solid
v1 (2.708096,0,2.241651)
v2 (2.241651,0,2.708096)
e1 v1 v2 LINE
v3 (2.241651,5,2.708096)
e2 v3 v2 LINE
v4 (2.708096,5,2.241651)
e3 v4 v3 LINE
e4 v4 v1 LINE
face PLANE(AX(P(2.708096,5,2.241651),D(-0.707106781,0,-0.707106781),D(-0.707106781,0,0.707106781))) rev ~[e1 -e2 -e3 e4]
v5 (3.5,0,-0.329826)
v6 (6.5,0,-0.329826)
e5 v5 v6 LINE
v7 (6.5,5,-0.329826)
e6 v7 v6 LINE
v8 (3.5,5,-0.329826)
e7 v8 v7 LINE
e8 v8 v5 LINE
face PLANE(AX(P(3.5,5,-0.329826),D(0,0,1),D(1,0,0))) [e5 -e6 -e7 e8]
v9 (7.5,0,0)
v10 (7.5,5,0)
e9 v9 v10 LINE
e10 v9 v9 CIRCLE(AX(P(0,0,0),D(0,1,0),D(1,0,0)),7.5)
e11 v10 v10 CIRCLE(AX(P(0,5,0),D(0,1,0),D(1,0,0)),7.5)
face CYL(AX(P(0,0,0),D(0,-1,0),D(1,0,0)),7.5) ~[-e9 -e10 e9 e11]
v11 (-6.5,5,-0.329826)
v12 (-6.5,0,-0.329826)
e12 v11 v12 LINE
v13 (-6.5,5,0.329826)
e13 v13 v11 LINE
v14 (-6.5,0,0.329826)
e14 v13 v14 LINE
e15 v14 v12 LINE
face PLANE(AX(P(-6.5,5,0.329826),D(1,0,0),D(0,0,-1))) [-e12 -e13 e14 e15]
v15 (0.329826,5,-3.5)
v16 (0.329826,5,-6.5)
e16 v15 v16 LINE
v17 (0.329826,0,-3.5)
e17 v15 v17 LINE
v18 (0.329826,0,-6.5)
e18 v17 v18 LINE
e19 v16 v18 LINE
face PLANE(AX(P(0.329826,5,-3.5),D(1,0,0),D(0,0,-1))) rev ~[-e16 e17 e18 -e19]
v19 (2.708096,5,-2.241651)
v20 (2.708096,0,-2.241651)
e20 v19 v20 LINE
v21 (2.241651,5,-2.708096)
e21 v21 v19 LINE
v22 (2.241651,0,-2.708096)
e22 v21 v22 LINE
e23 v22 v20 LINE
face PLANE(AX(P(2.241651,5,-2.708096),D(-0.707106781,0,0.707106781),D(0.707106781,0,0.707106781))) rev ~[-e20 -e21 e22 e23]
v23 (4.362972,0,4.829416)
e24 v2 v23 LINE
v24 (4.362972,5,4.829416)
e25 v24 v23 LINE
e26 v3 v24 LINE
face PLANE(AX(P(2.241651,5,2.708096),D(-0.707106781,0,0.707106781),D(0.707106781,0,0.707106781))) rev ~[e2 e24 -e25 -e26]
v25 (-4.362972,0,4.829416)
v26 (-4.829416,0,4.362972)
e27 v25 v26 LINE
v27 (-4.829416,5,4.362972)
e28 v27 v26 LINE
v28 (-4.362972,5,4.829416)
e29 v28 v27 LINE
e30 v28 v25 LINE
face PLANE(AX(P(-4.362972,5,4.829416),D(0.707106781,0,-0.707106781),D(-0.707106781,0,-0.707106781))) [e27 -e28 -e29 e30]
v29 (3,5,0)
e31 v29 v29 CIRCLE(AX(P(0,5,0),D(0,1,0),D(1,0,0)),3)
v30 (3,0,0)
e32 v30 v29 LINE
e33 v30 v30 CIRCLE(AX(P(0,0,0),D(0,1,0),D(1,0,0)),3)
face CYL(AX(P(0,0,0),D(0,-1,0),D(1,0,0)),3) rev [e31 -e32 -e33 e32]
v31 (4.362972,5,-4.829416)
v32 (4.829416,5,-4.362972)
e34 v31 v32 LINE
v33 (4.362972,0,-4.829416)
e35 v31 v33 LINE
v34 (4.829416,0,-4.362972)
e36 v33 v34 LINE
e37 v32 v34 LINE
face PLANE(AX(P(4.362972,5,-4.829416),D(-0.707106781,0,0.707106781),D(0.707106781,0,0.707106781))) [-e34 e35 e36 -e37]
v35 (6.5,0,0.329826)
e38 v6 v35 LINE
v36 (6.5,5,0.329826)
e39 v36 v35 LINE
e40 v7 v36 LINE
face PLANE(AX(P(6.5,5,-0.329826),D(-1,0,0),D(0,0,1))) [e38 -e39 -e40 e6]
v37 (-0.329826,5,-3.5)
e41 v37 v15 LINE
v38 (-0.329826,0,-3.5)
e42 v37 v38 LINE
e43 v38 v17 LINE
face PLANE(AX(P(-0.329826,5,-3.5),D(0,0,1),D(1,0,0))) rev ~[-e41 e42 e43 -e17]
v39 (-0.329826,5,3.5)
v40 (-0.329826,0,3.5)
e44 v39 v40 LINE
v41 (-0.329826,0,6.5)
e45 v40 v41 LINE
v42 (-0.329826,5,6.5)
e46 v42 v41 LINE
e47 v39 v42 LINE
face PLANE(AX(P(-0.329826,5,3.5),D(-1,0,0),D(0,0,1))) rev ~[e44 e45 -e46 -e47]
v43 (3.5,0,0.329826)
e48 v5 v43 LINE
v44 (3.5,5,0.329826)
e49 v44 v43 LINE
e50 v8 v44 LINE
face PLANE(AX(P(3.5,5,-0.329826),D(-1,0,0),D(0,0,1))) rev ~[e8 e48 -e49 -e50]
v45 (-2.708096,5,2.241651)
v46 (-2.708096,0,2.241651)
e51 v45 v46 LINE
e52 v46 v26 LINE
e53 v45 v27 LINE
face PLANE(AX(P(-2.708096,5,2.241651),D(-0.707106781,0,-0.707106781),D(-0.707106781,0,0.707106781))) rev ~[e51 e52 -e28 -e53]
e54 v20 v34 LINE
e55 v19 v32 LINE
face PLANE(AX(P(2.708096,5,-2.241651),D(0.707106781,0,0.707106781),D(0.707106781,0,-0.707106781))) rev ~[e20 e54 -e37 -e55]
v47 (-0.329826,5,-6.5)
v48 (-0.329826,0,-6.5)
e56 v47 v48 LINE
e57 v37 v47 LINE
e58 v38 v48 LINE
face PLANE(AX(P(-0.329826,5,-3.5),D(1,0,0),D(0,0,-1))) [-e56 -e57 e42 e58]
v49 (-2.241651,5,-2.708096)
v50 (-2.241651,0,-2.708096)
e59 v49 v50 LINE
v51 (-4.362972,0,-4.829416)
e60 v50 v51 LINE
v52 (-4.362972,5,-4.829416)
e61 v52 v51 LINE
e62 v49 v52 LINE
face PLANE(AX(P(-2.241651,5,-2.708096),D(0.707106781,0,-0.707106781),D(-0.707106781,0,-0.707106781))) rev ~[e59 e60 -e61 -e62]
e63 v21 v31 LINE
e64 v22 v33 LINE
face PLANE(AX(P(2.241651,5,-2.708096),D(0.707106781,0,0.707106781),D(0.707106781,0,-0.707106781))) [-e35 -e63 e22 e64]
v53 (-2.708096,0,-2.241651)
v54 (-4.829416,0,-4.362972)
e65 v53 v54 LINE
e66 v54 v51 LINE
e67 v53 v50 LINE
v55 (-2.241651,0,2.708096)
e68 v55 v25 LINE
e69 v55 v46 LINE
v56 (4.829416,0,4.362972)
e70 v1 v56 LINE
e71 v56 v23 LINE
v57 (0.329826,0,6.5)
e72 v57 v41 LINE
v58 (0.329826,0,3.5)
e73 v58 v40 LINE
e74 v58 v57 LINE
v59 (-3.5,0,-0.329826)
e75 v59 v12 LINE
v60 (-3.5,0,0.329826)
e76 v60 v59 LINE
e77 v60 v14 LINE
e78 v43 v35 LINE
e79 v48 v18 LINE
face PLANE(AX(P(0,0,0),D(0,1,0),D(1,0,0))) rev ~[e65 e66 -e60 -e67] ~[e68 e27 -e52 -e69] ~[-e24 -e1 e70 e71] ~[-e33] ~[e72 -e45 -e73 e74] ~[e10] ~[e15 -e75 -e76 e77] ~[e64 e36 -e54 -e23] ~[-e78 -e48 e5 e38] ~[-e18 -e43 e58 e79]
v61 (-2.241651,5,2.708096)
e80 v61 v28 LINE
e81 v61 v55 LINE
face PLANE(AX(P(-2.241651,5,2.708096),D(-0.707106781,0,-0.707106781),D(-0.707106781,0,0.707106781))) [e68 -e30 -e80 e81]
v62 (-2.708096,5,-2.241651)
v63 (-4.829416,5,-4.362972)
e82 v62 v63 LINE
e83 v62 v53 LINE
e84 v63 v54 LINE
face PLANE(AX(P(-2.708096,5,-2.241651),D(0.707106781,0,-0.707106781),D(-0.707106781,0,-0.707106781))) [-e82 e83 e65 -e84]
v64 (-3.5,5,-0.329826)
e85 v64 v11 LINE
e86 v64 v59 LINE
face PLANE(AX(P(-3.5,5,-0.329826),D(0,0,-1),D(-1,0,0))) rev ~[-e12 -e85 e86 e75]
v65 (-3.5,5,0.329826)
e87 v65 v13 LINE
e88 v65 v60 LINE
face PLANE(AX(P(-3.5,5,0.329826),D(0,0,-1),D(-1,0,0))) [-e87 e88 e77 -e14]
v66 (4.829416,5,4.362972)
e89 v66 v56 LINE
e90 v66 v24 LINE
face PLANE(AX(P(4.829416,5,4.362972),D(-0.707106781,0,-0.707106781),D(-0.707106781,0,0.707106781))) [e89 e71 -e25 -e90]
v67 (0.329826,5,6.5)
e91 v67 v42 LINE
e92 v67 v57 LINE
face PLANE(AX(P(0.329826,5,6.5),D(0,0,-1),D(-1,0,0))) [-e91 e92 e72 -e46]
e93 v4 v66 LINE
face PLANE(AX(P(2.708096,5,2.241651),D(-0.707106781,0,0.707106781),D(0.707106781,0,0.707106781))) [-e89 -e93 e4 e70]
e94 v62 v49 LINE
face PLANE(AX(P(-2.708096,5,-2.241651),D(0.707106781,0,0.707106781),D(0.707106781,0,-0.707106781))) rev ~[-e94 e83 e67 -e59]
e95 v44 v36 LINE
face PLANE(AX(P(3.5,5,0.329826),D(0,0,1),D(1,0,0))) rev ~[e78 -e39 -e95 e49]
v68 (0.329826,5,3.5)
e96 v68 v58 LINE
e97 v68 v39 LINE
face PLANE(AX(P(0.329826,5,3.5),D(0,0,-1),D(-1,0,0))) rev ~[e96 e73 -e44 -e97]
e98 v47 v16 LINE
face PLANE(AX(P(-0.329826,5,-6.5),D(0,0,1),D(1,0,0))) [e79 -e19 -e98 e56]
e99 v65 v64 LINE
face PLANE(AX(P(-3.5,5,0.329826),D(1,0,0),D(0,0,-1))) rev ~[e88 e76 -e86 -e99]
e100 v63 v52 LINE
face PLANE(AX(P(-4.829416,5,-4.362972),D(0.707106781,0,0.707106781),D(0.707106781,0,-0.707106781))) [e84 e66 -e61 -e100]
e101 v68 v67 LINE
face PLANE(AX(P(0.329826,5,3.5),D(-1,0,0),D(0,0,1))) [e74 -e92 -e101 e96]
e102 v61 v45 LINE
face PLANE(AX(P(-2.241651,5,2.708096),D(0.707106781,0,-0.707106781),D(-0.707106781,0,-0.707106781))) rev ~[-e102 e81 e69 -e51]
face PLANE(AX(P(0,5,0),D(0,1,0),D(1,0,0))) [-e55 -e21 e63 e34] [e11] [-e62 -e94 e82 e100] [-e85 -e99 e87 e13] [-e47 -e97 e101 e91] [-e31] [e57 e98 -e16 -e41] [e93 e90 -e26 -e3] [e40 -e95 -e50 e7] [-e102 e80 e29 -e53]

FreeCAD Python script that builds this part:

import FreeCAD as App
import Part
import Sketcher

V = App.Vector
Q = App.Units.Quantity

doc = App.newDocument("Part")
body = doc.addObject("PartDesign::Body", "Body")

# Sketch on XZ plane
sketch1 = doc.addObject("Sketcher::SketchObject", "Sketch")
body.addObject(sketch1)
sketch1.AttachmentSupport = (doc.XZ_Plane, [""])
sketch1.MapMode = "FlatFace"
sketch1.addGeometry(Part.Circle(V(0, 0, 0), V(0, 0, 1), 7.5), False)
sketch1.addGeometry(Part.Circle(V(0, 0, 0), V(0, 0, 1), 3), False)
sketch1.addConstraint(Sketcher.Constraint("Coincident", 0, 3, -1, 1))
sketch1.addConstraint(Sketcher.Constraint("Coincident", 1, 3, -1, 1))
sketch1.addConstraint(Sketcher.Constraint("Diameter", 0, Q("15 mm")))
sketch1.addConstraint(Sketcher.Constraint("Diameter", 1, Q("6 mm")))
pad1 = doc.addObject("PartDesign::Pad", "Pad")
body.addObject(pad1)
pad1.Profile = sketch1
pad1.Length = 5
pad1.Reversed = True

# Sketch on XZ plane
sketch2 = doc.addObject("Sketcher::SketchObject", "Sketch001")
body.addObject(sketch2)
sketch2.AttachmentSupport = (doc.XZ_Plane, [""])
sketch2.MapMode = "FlatFace"
sketch2.AttachmentOffset = App.Placement(V(0, 0, -5), App.Rotation())
sketch2.addGeometry(Part.LineSegment(V(-0.329826, -6.5, 0), V(-0.329826, -3.5, 0)), False)
sketch2.addGeometry(Part.LineSegment(V(-0.329826, -3.5, 0), V(0.329826, -3.5, 0)), False)
sketch2.addGeometry(Part.LineSegment(V(0.329826, -3.5, 0), V(0.329826, -6.5, 0)), False)
sketch2.addGeometry(Part.LineSegment(V(0.329826, -6.5, 0), V(-0.329826, -6.5, 0)), False)
sketch2.addConstraint(Sketcher.Constraint("Coincident", 0, 2, 1, 1))
sketch2.addConstraint(Sketcher.Constraint("Coincident", 1, 2, 2, 1))
sketch2.addConstraint(Sketcher.Constraint("Coincident", 2, 2, 3, 1))
sketch2.addConstraint(Sketcher.Constraint("Coincident", 3, 2, 0, 1))
sketch2.addConstraint(Sketcher.Constraint("Vertical", 0))
sketch2.addConstraint(Sketcher.Constraint("Horizontal", 1))
sketch2.addConstraint(Sketcher.Constraint("Vertical", 2))
sketch2.addConstraint(Sketcher.Constraint("Horizontal", 3))
sketch2.addConstraint(Sketcher.Constraint("DistanceY", 0, 1, 0, 2, Q("3 mm")))
sketch2.addConstraint(Sketcher.Constraint("DistanceY", 0, 2, -1, 1, Q("3.5 mm")))
sketch2.addConstraint(Sketcher.Constraint("DistanceX", 1, 1, 1, 2, Q("0.659652 mm")))
sketch2.addConstraint(Sketcher.Constraint("DistanceX", 0, 2, -1, 1, Q("0.329826 mm")))
pocket1 = doc.addObject("PartDesign::Pocket", "Pocket")
body.addObject(pocket1)
pocket1.Profile = sketch2
pocket1.Length = 10
pocket1.Reversed = True
doc.recompute()

polarpattern = doc.addObject("PartDesign::PolarPattern", "PolarPattern")
body.addObject(polarpattern)
polarpattern.Originals = [pocket1]
polarpattern.Axis = (doc.Y_Axis, [""])
polarpattern.Angle = 360
polarpattern.Occurrences = 8
body.Tip = polarpattern

doc.recompute()
